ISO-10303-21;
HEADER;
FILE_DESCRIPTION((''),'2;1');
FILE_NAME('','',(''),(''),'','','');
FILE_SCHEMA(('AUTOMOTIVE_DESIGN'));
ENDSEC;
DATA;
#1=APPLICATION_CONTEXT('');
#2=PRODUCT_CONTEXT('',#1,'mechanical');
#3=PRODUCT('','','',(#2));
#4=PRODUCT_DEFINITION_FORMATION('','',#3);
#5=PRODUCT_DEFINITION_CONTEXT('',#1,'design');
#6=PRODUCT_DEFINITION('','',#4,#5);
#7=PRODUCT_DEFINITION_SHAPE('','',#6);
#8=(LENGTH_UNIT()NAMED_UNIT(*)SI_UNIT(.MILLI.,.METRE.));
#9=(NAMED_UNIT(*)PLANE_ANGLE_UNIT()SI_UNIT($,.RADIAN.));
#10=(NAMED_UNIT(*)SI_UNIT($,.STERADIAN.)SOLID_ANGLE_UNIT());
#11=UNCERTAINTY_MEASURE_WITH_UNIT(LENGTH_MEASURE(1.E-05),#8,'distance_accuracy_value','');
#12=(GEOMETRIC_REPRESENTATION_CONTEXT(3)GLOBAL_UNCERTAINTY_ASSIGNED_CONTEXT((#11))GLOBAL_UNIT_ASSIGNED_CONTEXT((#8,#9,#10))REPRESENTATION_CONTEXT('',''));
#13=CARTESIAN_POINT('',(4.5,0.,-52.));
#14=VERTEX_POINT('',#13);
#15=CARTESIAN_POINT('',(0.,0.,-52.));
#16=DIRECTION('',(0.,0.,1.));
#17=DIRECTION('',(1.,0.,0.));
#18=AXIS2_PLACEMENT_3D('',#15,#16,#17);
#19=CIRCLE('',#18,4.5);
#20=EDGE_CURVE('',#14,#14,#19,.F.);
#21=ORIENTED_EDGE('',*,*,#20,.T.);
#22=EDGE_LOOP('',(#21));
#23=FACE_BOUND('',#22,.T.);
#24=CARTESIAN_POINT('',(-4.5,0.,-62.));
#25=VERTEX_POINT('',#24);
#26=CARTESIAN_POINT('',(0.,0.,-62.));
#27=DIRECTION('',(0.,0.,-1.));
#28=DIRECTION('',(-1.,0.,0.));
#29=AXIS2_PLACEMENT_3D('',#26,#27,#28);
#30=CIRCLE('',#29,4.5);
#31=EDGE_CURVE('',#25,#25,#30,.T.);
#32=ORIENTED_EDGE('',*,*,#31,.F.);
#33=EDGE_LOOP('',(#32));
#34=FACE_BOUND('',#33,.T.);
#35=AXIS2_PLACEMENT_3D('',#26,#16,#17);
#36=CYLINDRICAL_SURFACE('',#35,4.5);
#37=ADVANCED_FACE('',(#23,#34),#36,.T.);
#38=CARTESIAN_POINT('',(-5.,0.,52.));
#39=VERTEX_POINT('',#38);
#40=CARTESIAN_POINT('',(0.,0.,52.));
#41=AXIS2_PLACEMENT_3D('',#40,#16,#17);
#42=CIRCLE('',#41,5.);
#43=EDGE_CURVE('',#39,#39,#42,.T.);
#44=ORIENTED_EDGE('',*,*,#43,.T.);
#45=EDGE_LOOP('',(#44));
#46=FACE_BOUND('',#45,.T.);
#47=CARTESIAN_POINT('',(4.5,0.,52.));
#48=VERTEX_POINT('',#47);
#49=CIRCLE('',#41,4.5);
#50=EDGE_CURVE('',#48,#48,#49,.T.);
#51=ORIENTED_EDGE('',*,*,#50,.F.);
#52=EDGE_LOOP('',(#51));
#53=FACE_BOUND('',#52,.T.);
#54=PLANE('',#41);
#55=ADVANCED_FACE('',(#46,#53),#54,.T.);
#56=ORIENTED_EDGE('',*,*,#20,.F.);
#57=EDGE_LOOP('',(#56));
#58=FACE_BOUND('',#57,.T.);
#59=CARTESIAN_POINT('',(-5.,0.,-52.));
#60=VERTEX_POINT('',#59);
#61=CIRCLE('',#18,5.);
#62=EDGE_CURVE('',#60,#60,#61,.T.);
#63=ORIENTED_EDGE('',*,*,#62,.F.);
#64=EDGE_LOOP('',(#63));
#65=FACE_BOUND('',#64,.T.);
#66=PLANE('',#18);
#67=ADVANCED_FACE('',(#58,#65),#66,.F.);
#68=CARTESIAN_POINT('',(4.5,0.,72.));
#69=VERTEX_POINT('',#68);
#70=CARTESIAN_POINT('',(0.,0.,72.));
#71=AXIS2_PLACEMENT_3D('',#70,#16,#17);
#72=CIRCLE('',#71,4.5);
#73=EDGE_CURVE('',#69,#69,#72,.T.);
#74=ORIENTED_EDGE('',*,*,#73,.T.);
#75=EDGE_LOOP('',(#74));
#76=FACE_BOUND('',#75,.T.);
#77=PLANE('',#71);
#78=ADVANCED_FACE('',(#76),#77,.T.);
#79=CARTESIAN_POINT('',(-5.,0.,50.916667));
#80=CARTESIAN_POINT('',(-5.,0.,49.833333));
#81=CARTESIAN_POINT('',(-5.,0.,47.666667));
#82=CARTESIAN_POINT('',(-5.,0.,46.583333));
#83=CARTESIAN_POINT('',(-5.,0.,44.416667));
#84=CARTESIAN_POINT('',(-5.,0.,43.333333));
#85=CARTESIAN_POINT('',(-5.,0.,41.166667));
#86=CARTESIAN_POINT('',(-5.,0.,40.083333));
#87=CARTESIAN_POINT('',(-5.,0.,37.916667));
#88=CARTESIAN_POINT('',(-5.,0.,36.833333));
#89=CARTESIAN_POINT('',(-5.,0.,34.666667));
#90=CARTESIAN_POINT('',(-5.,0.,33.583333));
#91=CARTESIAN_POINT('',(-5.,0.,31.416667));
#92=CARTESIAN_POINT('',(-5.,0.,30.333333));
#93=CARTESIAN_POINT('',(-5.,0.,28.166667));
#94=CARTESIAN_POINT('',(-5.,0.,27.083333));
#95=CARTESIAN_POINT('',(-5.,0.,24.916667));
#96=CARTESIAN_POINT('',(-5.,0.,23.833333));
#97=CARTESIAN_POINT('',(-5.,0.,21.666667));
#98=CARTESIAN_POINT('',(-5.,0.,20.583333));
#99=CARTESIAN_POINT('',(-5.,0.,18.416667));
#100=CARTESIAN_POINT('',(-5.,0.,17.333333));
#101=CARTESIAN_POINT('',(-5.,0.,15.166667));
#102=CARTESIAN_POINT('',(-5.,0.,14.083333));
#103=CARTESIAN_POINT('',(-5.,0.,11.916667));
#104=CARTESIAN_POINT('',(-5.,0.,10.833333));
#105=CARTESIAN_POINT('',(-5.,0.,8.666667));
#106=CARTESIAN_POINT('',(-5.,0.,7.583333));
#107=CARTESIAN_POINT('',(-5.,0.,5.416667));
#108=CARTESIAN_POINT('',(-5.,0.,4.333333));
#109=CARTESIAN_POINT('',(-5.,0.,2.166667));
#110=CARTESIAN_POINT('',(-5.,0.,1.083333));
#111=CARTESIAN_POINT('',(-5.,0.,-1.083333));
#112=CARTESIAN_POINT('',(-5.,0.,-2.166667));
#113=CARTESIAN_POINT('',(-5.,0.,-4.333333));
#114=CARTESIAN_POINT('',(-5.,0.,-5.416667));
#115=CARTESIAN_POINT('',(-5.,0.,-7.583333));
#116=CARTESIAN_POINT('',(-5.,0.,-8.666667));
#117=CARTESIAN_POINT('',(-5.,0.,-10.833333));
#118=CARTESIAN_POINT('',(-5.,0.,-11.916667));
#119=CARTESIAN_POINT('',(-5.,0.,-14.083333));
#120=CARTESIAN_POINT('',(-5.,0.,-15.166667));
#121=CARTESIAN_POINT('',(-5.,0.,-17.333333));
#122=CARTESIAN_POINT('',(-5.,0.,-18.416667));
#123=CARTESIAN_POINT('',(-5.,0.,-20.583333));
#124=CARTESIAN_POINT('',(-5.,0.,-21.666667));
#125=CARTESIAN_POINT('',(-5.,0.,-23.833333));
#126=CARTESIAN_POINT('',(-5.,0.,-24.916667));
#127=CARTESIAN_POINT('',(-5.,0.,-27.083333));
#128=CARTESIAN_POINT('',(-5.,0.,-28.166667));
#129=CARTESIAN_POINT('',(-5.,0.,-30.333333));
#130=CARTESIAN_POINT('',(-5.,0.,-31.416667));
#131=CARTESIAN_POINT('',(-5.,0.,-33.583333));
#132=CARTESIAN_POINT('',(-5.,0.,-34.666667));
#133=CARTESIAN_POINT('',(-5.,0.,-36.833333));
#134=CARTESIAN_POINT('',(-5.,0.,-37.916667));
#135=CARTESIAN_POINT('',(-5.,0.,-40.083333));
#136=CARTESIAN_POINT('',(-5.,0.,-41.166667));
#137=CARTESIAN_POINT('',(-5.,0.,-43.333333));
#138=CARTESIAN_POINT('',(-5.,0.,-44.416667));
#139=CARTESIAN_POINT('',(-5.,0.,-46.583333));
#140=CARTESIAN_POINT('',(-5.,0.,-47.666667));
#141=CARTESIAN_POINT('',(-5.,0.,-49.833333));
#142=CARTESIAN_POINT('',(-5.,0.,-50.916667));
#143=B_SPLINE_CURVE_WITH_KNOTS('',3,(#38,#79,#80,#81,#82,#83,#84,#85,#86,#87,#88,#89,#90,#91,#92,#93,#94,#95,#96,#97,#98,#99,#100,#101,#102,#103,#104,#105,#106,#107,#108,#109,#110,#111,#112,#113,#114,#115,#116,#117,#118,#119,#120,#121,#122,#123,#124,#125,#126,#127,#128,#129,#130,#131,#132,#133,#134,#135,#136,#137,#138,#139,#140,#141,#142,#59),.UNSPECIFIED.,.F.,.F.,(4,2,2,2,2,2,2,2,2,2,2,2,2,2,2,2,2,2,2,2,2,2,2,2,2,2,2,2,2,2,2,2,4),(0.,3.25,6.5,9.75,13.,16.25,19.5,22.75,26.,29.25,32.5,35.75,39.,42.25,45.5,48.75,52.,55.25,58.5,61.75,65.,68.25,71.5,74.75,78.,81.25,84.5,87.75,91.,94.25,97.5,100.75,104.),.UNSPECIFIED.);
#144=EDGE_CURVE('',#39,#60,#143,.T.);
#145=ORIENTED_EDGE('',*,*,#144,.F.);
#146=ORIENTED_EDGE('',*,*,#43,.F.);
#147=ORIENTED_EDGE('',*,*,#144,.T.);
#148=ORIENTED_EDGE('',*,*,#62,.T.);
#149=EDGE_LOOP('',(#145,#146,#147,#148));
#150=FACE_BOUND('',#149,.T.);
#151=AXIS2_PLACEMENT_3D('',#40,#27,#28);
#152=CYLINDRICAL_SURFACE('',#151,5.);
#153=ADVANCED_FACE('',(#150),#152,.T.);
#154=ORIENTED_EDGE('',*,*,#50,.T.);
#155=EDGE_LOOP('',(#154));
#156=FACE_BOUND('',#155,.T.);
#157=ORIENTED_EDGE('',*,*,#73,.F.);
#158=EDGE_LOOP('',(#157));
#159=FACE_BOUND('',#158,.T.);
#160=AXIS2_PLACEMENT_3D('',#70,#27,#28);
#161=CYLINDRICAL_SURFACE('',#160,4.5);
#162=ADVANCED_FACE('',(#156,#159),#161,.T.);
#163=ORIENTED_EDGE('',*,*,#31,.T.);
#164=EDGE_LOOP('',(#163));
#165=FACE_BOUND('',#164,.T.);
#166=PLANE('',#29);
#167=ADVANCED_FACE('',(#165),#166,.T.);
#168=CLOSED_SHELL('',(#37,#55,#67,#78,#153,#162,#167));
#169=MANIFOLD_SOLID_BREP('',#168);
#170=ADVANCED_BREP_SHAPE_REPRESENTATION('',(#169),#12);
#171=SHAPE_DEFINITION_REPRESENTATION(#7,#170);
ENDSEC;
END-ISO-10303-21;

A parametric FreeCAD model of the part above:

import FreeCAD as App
import Part
import Sketcher

doc = App.newDocument("Part")
body = doc.addObject("PartDesign::Body", "Body")

sketch1 = doc.addObject("Sketcher::SketchObject", "Sketch")
body.addObject(sketch1)
sketch1.AttachmentSupport = (doc.XY_Plane, [""])
sketch1.MapMode = "FlatFace"
sketch1.addGeometry(Part.Circle(App.Vector(0, 0, 0), App.Vector(0, 0, 1), 5), False)
sketch1.addConstraint(Sketcher.Constraint("Coincident", 0, 3, -1, 1))
sketch1.addConstraint(Sketcher.Constraint("Diameter", 0, 10.0))
pad1 = doc.addObject("PartDesign::Pad", "Pad")
body.addObject(pad1)
pad1.Profile = sketch1
pad1.Length = 104
pad1.Midplane = True

sketch2 = doc.addObject("Sketcher::SketchObject", "Sketch001")
body.addObject(sketch2)
sketch2.AttachmentSupport = (doc.XY_Plane, [""])
sketch2.MapMode = "FlatFace"
sketch2.AttachmentOffset = App.Placement(App.Vector(0, 0, -52), App.Rotation())
sketch2.addGeometry(Part.Circle(App.Vector(0, 0, 0), App.Vector(0, 0, 1), 4.5), False)
sketch2.addConstraint(Sketcher.Constraint("Coincident", 0, 3, -1, 1))
sketch2.addConstraint(Sketcher.Constraint("Diameter", 0, 9.0))
pad2 = doc.addObject("PartDesign::Pad", "Pad001")
body.addObject(pad2)
pad2.Profile = sketch2
pad2.Length = 10
pad2.Reversed = True

sketch3 = doc.addObject("Sketcher::SketchObject", "Sketch002")
body.addObject(sketch3)
sketch3.AttachmentSupport = (doc.XY_Plane, [""])
sketch3.MapMode = "FlatFace"
sketch3.AttachmentOffset = App.Placement(App.Vector(0, 0, 72), App.Rotation())
sketch3.addGeometry(Part.Circle(App.Vector(0, 0, 0), App.Vector(0, 0, 1), 4.5), False)
sketch3.addConstraint(Sketcher.Constraint("Coincident", 0, 3, -1, 1))
sketch3.addConstraint(Sketcher.Constraint("Diameter", 0, 9.0))
pad3 = doc.addObject("PartDesign::Pad", "Pad002")
body.addObject(pad3)
pad3.Profile = sketch3
pad3.Length = 20
pad3.Reversed = True

doc.recompute()
